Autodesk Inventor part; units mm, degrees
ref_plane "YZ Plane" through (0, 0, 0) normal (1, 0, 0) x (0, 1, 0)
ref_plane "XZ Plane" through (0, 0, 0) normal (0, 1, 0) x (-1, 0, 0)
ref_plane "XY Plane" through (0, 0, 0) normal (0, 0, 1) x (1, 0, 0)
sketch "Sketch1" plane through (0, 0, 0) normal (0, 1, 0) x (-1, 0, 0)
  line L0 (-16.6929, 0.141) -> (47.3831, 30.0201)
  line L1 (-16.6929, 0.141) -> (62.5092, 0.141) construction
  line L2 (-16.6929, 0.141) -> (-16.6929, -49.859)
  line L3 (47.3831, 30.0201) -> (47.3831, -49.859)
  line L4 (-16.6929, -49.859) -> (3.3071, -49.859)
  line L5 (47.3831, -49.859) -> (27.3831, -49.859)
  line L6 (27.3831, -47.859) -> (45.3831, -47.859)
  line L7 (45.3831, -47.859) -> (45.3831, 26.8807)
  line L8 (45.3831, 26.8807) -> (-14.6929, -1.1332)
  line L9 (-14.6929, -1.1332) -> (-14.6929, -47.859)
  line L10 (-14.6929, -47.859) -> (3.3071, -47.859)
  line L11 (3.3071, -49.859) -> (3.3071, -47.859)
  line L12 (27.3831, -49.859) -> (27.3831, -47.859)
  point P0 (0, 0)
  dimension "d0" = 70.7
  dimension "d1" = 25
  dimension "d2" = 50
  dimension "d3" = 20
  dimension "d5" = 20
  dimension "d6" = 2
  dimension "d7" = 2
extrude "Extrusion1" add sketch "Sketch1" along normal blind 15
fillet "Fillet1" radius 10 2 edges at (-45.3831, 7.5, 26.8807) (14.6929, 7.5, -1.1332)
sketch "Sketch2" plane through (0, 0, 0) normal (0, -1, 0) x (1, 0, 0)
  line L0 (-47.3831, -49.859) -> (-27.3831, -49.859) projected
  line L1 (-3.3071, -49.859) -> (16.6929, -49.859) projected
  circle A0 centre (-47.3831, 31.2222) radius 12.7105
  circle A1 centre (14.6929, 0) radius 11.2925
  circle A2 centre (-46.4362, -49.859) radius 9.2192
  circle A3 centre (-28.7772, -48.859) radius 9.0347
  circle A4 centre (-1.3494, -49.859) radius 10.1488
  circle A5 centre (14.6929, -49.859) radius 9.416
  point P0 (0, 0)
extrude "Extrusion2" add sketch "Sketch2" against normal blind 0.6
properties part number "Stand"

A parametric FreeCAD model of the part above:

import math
import FreeCAD as App
import Part
import Sketcher
Q = App.Units.Quantity


def edges_at(feature, points):
    """Names of the edges that pass closest to the given points."""
    edges = feature.Shape.Edges
    near = lambda p: min(range(len(edges)), key=lambda i: edges[i].distToShape(Part.Vertex(*p))[0])
    return sorted({f"Edge{near(p) + 1}" for p in points})

doc = App.newDocument("Part")
body = doc.addObject("PartDesign::Body", "Body")

# Sketch on XZ plane
sketch1 = body.newObject("Sketcher::SketchObject", "Sketch")
sketch1.AttachmentSupport = (doc.getObject("XZ_Plane"), [""])
sketch1.MapMode = "FlatFace"
sketch1.addGeometry(Part.LineSegment(App.Vector(-47.4, 30, 0), App.Vector(16.7, 0.1, 0)), False)
sketch1.addGeometry(Part.LineSegment(App.Vector(16.7, 0.1, 0), App.Vector(16.7, -49.9, 0)), False)
sketch1.addGeometry(Part.LineSegment(App.Vector(16.7, -49.9, 0), App.Vector(-3.3, -49.9, 0)), False)
sketch1.addGeometry(Part.LineSegment(App.Vector(-3.3, -49.9, 0), App.Vector(-3.3, -47.9, 0)), False)
sketch1.addGeometry(Part.LineSegment(App.Vector(-3.3, -47.9, 0), App.Vector(14.7, -47.9, 0)), False)
sketch1.addGeometry(Part.LineSegment(App.Vector(14.7, -47.9, 0), App.Vector(14.7, -1.1, 0)), False)
sketch1.addGeometry(Part.LineSegment(App.Vector(14.7, -1.1, 0), App.Vector(-45.4, 26.9, 0)), False)
sketch1.addGeometry(Part.LineSegment(App.Vector(-45.4, 26.9, 0), App.Vector(-45.4, -47.9, 0)), False)
sketch1.addGeometry(Part.LineSegment(App.Vector(-45.4, -47.9, 0), App.Vector(-27.4, -47.9, 0)), False)
sketch1.addGeometry(Part.LineSegment(App.Vector(-27.4, -47.9, 0), App.Vector(-27.4, -49.9, 0)), False)
sketch1.addGeometry(Part.LineSegment(App.Vector(-27.4, -49.9, 0), App.Vector(-47.4, -49.9, 0)), False)
sketch1.addGeometry(Part.LineSegment(App.Vector(-47.4, -49.9, 0), App.Vector(-47.4, 30, 0)), False)
sketch1.addConstraint(Sketcher.Constraint("Coincident", 0, 2, 1, 1))
sketch1.addConstraint(Sketcher.Constraint("Coincident", 1, 2, 2, 1))
sketch1.addConstraint(Sketcher.Constraint("Coincident", 2, 2, 3, 1))
sketch1.addConstraint(Sketcher.Constraint("Coincident", 3, 2, 4, 1))
sketch1.addConstraint(Sketcher.Constraint("Coincident", 4, 2, 5, 1))
sketch1.addConstraint(Sketcher.Constraint("Coincident", 5, 2, 6, 1))
sketch1.addConstraint(Sketcher.Constraint("Coincident", 6, 2, 7, 1))
sketch1.addConstraint(Sketcher.Constraint("Coincident", 7, 2, 8, 1))
sketch1.addConstraint(Sketcher.Constraint("Coincident", 8, 2, 9, 1))
sketch1.addConstraint(Sketcher.Constraint("Coincident", 9, 2, 10, 1))
sketch1.addConstraint(Sketcher.Constraint("Coincident", 10, 2, 11, 1))
sketch1.addConstraint(Sketcher.Constraint("Coincident", 11, 2, 0, 1))
sketch1.addConstraint(Sketcher.Constraint("Vertical", 1))
sketch1.addConstraint(Sketcher.Constraint("Horizontal", 2))
sketch1.addConstraint(Sketcher.Constraint("Vertical", 3))
sketch1.addConstraint(Sketcher.Constraint("Horizontal", 4))
sketch1.addConstraint(Sketcher.Constraint("Vertical", 5))
sketch1.addConstraint(Sketcher.Constraint("Vertical", 7))
sketch1.addConstraint(Sketcher.Constraint("Horizontal", 8))
sketch1.addConstraint(Sketcher.Constraint("Vertical", 9))
sketch1.addConstraint(Sketcher.Constraint("Horizontal", 10))
sketch1.addConstraint(Sketcher.Constraint("Vertical", 11))
sketch1.addConstraint(Sketcher.Constraint("Parallel", 0, 6))
sketch1.addConstraint(Sketcher.Constraint("Horizontal", 4, 2, 7, 2))
sketch1.addConstraint(Sketcher.Constraint("Horizontal", 2, 2, 9, 2))
sketch1.addConstraint(Sketcher.Constraint("Equal", 4, 8))
sketch1.addConstraint(Sketcher.Constraint("Equal", 2, 10))
sketch1.addConstraint(Sketcher.Constraint("DistanceX", 2, 2, 2, 1, 20.0))
sketch1.addConstraint(Sketcher.Constraint("DistanceY", 1, 2, 1, 1, 50.0))
sketch1.addConstraint(Sketcher.Constraint("DistanceY", 3, 1, 3, 2, 2.0))
sketch1.addConstraint(Sketcher.Constraint("Angle", 0, Q("-25 deg")))
sketch1.addConstraint(Sketcher.Constraint("DistanceX", 4, 2, 1, 2, 2.0))
sketch1.addConstraint(Sketcher.Constraint("Distance", 0, 70.7))
sketch1.addConstraint(Sketcher.Constraint("DistanceY", -1, 1, 11, 2, 30.02))
sketch1.addConstraint(Sketcher.Constraint("DistanceY", 5, 1, 5, 2, 46.7258))
sketch1.addConstraint(Sketcher.Constraint("DistanceX", -1, 1, 0, 2, 16.693))
pad1 = body.newObject("PartDesign::Pad", "Pad")
pad1.Profile = sketch1
pad1.Length = 15
pad1.Reversed = True
doc.recompute()

fillet = body.newObject("PartDesign::Fillet", "Fillet")
fillet.Base = (pad1, edges_at(pad1, [(-45.383, 7.5, 26.881), (14.693, 7.5, -1.133)]))
fillet.Radius = 10

# Sketch on XZ plane
sketch2 = body.newObject("Sketcher::SketchObject", "Sketch001")
sketch2.AttachmentSupport = (doc.getObject("XZ_Plane"), [""])
sketch2.MapMode = "FlatFace"
sketch2.addGeometry(Part.ArcOfCircle(Part.Circle(App.Vector(-46.4, -49.9, 0), App.Vector(0, 0, 1), 9.2), math.radians(17), math.radians(349)), False)
sketch2.addGeometry(Part.ArcOfCircle(Part.Circle(App.Vector(-28.8, -48.9, 0), App.Vector(0, 0, 1), 9), math.radians(-162), math.radians(169)), False)
sketch2.addGeometry(Part.ArcOfCircle(Part.Circle(App.Vector(-1.3, -49.9, 0), App.Vector(0, 0, 1), 10.1), math.radians(33), math.radians(327)), False)
sketch2.addGeometry(Part.ArcOfCircle(Part.Circle(App.Vector(14.7, -49.9, 0), App.Vector(0, 0, 1), 9.4), math.radians(-144), math.radians(144)), False)
sketch2.addGeometry(Part.Circle(App.Vector(-47.4, 31.2, 0), App.Vector(0, 0, 1), 12.7), False)
sketch2.addGeometry(Part.Circle(App.Vector(14.7, 0, 0), App.Vector(0, 0, 1), 11.3), False)
sketch2.addConstraint(Sketcher.Constraint("Coincident", 0, 1, 1, 2))
sketch2.addConstraint(Sketcher.Constraint("Coincident", 1, 1, 0, 2))
sketch2.addConstraint(Sketcher.Constraint("Coincident", 2, 1, 3, 2))
sketch2.addConstraint(Sketcher.Constraint("Coincident", 3, 1, 2, 2))
sketch2.addConstraint(Sketcher.Constraint("PointOnObject", 5, 3, -1))
sketch2.addConstraint(Sketcher.Constraint("Horizontal", 0, 3, 2, 3))
sketch2.addConstraint(Sketcher.Constraint("Horizontal", 2, 3, 3, 3))
sketch2.addConstraint(Sketcher.Constraint("Vertical", 3, 3, 5, 3))
sketch2.addConstraint(Sketcher.Constraint("Diameter", 4, 25.421))
sketch2.addConstraint(Sketcher.Constraint("Diameter", 5, 22.585))
sketch2.addConstraint(Sketcher.Constraint("Radius", 3, 9.416))
sketch2.addConstraint(Sketcher.Constraint("DistanceY", 0, 3, 1, 3, 1.0))
sketch2.addConstraint(Sketcher.Constraint("Radius", 0, 9.2192))
sketch2.addConstraint(Sketcher.Constraint("Radius", 1, 9.0347))
sketch2.addConstraint(Sketcher.Constraint("Radius", 2, 10.1488))
sketch2.addConstraint(Sketcher.Constraint("DistanceX", 1, 3, 3, 3, 43.47))
sketch2.addConstraint(Sketcher.Constraint("DistanceY", 0, 3, -1, 1, 49.859))
sketch2.addConstraint(Sketcher.Constraint("DistanceX", -1, 1, 3, 3, 14.693))
sketch2.addConstraint(Sketcher.Constraint("DistanceX", 4, 3, -1, 1, 47.383))
sketch2.addConstraint(Sketcher.Constraint("DistanceY", 0, 1, -1, 1, 47.101))
sketch2.addConstraint(Sketcher.Constraint("DistanceX", 2, 3, 2, 1, 8.468))
sketch2.addConstraint(Sketcher.Constraint("DistanceY", -1, 1, 4, 3, 31.2222))
pad2 = body.newObject("PartDesign::Pad", "Pad001")
pad2.Profile = sketch2
pad2.Length = 0.6
pad2.Reversed = True

doc.recompute()
